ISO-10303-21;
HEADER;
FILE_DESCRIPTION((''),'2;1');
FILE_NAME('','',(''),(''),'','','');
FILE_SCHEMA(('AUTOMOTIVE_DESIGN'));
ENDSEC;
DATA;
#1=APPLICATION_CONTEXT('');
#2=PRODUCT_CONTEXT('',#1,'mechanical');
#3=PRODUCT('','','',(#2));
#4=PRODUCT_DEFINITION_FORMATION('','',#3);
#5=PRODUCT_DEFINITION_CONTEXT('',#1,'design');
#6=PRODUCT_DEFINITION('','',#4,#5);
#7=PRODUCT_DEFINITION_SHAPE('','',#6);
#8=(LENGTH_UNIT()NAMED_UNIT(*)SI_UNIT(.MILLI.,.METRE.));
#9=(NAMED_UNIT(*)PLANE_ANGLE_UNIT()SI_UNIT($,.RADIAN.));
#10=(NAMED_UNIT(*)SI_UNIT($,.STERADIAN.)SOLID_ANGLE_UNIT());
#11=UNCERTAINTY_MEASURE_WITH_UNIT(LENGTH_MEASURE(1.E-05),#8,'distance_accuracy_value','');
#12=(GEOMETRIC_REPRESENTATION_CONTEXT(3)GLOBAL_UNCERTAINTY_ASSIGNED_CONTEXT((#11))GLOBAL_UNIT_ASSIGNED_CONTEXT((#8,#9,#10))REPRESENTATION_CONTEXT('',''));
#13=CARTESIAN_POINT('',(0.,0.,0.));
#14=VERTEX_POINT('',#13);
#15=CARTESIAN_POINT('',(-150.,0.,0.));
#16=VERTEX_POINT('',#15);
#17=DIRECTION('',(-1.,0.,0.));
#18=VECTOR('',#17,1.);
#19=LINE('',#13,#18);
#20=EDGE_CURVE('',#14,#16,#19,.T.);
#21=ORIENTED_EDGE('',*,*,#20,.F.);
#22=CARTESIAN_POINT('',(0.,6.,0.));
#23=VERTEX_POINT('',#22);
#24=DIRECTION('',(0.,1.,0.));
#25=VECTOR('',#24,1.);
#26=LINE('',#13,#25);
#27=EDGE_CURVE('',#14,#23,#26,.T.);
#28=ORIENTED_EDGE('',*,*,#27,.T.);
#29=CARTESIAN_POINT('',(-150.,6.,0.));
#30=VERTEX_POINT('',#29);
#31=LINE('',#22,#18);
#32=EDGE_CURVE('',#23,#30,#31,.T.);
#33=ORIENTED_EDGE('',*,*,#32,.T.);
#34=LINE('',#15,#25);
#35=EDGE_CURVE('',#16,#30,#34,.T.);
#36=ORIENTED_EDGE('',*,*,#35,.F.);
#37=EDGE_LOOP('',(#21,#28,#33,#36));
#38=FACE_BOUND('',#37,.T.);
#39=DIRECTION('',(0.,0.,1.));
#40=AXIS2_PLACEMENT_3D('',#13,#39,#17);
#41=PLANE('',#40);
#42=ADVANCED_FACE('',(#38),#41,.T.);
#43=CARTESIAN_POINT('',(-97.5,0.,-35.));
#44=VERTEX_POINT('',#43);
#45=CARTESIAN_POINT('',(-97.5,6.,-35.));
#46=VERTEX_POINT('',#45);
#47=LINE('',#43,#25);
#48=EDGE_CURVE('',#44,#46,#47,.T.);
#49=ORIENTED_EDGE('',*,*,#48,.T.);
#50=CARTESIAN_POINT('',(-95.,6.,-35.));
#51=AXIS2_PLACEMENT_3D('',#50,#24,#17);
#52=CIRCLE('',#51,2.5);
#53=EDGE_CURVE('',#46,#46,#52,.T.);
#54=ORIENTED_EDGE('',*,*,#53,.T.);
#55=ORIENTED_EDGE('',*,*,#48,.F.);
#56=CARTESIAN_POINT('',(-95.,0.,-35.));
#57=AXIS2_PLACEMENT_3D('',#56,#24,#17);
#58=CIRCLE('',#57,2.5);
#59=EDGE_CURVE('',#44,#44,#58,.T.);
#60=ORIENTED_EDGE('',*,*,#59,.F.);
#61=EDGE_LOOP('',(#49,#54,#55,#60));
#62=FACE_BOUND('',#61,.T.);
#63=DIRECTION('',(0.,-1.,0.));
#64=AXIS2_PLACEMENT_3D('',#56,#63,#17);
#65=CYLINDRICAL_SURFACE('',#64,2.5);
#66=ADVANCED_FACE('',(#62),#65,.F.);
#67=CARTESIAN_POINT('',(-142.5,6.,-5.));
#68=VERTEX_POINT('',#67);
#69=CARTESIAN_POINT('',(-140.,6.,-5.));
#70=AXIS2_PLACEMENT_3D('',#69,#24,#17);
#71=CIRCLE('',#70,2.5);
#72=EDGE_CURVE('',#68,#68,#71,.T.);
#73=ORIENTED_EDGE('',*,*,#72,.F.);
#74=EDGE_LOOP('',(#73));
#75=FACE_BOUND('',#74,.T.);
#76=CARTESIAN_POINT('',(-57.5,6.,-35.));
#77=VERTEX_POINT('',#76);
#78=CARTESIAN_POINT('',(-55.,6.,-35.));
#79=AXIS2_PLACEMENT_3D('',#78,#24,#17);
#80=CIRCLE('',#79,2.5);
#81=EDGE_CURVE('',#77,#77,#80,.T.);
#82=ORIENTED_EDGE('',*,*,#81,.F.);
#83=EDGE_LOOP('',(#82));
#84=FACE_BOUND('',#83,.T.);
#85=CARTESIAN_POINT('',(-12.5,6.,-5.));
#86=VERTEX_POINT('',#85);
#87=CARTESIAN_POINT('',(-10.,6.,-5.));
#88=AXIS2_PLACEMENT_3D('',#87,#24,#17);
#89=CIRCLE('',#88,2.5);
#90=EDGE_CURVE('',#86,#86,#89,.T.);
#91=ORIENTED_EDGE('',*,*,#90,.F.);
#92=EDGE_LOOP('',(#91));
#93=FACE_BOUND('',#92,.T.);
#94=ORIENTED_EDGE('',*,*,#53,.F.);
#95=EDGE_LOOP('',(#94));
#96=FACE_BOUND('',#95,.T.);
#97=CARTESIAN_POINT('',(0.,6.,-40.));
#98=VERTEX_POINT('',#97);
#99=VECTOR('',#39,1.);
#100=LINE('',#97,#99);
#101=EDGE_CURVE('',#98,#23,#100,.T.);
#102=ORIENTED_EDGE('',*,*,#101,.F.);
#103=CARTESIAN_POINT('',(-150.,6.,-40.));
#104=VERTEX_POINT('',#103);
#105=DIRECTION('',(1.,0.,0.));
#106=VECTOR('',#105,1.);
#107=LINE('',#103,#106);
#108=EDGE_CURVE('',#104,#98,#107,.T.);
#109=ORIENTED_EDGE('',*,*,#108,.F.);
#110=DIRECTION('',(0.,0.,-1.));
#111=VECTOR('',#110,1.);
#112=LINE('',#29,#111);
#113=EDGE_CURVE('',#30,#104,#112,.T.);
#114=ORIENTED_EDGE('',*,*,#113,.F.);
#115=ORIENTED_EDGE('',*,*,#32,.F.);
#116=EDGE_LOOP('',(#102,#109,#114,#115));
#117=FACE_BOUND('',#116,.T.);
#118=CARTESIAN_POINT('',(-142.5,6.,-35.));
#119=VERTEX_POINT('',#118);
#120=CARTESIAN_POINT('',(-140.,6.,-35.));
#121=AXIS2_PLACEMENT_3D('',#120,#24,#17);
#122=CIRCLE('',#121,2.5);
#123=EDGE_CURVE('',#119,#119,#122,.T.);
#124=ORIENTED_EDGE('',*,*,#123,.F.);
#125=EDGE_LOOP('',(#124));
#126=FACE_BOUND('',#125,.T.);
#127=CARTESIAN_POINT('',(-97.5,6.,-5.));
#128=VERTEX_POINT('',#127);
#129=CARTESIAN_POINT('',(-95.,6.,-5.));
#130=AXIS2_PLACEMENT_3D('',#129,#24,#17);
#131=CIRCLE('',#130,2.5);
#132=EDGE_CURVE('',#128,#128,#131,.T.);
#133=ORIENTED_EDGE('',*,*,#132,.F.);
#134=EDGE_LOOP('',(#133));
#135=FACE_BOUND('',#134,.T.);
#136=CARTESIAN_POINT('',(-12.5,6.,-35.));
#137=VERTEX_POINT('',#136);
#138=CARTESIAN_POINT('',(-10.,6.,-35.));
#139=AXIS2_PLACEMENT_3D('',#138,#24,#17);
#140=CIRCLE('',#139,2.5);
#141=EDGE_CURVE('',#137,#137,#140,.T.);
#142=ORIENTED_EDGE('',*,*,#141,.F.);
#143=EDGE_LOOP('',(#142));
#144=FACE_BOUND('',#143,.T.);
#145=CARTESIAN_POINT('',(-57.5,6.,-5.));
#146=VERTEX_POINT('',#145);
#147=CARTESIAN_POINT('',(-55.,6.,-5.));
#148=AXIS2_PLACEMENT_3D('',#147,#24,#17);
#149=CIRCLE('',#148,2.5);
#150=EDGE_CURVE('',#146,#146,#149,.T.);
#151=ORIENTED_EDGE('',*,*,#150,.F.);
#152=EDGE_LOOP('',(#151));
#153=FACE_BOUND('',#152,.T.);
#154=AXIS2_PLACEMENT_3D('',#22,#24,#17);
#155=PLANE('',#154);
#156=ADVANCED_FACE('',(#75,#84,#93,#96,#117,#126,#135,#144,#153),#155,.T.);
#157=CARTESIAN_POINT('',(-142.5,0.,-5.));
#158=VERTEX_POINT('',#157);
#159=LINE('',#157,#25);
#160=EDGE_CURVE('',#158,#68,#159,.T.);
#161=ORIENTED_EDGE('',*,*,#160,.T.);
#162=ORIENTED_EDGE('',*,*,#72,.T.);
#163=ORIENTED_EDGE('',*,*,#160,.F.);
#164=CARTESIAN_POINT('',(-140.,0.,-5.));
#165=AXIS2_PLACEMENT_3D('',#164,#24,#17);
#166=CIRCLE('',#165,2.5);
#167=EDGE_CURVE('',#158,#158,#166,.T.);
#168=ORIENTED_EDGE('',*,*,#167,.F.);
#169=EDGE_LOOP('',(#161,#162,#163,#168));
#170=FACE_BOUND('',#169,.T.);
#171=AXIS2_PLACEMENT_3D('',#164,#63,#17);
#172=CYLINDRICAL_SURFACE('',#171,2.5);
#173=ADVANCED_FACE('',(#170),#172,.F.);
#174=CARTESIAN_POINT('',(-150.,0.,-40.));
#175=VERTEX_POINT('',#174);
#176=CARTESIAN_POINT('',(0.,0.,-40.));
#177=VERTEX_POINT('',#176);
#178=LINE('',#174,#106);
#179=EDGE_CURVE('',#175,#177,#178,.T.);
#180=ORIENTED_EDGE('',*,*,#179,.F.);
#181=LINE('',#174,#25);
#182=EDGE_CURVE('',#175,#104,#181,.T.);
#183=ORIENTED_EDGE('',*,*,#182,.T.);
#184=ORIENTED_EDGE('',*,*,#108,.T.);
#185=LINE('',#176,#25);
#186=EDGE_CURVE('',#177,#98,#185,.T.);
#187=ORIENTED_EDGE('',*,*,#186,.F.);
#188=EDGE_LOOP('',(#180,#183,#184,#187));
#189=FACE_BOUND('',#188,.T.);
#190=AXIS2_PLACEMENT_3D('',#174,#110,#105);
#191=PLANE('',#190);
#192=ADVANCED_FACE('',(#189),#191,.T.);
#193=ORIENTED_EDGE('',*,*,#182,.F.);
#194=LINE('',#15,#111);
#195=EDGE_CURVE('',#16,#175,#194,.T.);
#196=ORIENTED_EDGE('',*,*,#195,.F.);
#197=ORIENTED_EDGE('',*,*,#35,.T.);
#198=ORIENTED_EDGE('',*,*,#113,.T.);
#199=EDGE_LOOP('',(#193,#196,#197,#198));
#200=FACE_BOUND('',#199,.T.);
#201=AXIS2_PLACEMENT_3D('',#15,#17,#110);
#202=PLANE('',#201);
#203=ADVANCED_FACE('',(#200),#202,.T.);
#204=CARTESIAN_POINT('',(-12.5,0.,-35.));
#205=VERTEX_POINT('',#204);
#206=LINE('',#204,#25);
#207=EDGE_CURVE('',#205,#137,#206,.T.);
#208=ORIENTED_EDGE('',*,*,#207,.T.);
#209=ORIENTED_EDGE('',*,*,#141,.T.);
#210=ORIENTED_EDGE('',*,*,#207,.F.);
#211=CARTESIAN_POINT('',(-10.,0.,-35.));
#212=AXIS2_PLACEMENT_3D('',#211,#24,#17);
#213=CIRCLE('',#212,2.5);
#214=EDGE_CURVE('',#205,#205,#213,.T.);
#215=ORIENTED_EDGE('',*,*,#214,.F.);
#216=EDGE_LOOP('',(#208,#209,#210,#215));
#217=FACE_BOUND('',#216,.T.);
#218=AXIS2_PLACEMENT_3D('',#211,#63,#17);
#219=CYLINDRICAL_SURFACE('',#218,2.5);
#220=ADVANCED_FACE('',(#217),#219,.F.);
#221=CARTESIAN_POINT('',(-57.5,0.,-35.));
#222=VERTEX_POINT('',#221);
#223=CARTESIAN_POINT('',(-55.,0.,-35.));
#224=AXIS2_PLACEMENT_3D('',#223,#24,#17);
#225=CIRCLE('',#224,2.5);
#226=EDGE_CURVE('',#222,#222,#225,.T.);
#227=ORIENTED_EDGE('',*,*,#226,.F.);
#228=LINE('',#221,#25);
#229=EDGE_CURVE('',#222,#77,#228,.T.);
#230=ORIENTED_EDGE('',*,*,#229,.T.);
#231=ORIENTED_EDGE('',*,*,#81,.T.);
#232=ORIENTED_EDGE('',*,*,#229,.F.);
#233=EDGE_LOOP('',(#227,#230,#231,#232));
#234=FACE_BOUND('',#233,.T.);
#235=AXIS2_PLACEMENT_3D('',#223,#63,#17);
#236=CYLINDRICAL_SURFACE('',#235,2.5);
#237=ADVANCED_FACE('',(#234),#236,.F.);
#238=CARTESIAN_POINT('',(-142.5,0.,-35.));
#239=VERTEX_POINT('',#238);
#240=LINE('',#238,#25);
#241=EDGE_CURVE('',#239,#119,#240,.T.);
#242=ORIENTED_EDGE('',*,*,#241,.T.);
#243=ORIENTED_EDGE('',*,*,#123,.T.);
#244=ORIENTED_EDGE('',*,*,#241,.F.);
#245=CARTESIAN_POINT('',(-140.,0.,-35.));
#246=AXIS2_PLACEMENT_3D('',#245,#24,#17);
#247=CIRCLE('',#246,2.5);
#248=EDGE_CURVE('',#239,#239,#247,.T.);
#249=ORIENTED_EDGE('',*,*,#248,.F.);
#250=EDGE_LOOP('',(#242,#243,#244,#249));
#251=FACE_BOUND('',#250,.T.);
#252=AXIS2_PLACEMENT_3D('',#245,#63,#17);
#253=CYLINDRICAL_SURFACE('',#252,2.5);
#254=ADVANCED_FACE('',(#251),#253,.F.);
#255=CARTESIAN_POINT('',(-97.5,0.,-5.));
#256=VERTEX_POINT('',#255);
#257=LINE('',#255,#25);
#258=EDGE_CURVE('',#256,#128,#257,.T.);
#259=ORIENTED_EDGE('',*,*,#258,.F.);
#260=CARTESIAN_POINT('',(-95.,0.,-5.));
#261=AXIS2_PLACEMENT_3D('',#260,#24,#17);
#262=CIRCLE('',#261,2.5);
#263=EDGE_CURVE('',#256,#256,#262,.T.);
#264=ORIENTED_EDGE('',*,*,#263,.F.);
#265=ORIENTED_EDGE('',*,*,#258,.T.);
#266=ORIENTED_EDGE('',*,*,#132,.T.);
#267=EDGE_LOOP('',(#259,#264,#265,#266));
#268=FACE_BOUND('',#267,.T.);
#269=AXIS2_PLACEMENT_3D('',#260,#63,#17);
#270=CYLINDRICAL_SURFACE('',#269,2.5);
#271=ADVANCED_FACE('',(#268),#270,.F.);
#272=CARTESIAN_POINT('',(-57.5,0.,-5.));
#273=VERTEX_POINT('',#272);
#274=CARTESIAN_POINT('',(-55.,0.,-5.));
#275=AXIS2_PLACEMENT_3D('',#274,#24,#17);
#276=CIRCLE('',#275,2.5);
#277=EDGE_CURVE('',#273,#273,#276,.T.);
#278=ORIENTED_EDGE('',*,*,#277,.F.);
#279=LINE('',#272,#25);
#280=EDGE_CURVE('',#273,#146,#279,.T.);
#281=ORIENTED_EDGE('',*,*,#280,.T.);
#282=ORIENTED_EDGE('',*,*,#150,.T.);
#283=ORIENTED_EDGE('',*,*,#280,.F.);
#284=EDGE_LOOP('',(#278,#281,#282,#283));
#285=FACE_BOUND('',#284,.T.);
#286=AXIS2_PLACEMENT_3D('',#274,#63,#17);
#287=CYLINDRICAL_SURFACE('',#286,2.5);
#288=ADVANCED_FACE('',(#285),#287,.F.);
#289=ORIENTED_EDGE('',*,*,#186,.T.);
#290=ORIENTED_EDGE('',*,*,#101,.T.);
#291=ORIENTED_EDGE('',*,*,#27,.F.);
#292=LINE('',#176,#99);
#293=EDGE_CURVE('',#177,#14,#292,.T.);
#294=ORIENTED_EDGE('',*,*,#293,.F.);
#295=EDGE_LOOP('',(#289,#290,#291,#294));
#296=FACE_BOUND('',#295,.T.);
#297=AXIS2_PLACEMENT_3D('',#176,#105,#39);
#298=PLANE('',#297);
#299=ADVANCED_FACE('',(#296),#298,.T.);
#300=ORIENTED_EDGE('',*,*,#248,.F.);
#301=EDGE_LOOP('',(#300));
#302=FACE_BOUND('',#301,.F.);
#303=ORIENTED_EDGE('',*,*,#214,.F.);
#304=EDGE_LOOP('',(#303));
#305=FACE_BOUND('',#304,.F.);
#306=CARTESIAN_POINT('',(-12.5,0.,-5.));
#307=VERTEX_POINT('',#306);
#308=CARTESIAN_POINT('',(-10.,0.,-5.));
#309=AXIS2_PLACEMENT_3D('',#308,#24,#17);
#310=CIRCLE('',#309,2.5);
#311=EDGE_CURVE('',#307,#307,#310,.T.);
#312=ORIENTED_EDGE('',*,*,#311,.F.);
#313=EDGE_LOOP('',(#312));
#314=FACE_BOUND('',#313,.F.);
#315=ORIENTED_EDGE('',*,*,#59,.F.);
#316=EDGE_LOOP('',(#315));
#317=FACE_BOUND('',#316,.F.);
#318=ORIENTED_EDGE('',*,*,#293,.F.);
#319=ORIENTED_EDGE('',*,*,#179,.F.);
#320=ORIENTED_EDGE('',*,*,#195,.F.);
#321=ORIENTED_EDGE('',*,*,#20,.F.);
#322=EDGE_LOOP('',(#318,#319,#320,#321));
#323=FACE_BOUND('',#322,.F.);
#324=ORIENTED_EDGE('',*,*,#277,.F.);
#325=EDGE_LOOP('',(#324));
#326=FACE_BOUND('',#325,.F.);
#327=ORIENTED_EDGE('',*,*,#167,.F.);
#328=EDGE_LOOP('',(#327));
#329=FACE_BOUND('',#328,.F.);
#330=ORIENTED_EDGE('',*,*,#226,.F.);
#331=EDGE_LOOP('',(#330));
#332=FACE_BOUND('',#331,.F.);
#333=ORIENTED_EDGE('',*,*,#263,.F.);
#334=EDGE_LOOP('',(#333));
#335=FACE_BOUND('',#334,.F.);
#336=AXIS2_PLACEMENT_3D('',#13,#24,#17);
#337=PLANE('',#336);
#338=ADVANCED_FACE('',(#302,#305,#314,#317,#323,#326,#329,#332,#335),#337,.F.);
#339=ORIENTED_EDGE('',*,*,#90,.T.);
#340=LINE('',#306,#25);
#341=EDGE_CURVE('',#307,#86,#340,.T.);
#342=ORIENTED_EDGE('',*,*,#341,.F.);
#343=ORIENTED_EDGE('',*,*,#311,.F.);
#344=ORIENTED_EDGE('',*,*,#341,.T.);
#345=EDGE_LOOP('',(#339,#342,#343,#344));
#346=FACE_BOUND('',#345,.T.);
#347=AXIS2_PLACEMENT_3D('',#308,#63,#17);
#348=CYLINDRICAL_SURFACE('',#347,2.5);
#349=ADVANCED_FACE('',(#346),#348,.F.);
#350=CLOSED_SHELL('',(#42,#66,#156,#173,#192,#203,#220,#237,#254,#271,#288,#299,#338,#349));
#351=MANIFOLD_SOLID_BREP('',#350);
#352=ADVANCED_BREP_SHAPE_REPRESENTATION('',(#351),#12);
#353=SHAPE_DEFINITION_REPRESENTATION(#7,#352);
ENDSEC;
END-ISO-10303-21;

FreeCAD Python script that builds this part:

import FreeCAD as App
import Part
import Sketcher
from FreeCAD import Vector

doc = App.newDocument("Part")
params = doc.addObject("Spreadsheet::Sheet", "Params")
for row, (alias, value) in enumerate([
    ("sketch1_diameter", "5 mm"),
    ("sketch1_width", "150 mm"),
    ("sketch1_height", "40 mm"),
    ("pad1_length", "6 mm"),
], start=1):
    params.set(f"A{row}", alias)
    params.set(f"B{row}", "=" + value)
    params.setAlias(f"B{row}", alias)

body = doc.addObject("PartDesign::Body", "Body")

# Sketch on XZ plane
sketch1 = body.newObject("Sketcher::SketchObject", "Sketch")
sketch1.AttachmentSupport = (doc.getObject("XZ_Plane"), [""])
sketch1.MapMode = "FlatFace"
sketch1.addGeometry(Part.LineSegment(Vector(-150, 0, 0), Vector(0, 0, 0)), False)
sketch1.addGeometry(Part.LineSegment(Vector(0, 0, 0), Vector(0, -40, 0)), False)
sketch1.addGeometry(Part.LineSegment(Vector(0, -40, 0), Vector(-150, -40, 0)), False)
sketch1.addGeometry(Part.LineSegment(Vector(-150, -40, 0), Vector(-150, 0, 0)), False)
sketch1.addGeometry(Part.Circle(Vector(-10, -35, 0), Vector(0, 0, 1), 2.5), False)
sketch1.addGeometry(Part.Circle(Vector(-55, -35, 0), Vector(0, 0, 1), 2.5), False)
sketch1.addGeometry(Part.Circle(Vector(-95, -35, 0), Vector(0, 0, 1), 2.5), False)
sketch1.addGeometry(Part.Circle(Vector(-140, -35, 0), Vector(0, 0, 1), 2.5), False)
sketch1.addGeometry(Part.Circle(Vector(-10, -5, 0), Vector(0, 0, 1), 2.5), False)
sketch1.addGeometry(Part.Circle(Vector(-55, -5, 0), Vector(0, 0, 1), 2.5), False)
sketch1.addGeometry(Part.Circle(Vector(-95, -5, 0), Vector(0, 0, 1), 2.5), False)
sketch1.addGeometry(Part.Circle(Vector(-140, -5, 0), Vector(0, 0, 1), 2.5), False)
sketch1.addConstraint(Sketcher.Constraint("Coincident", 0, 2, 1, 1))
sketch1.addConstraint(Sketcher.Constraint("Coincident", 1, 2, 2, 1))
sketch1.addConstraint(Sketcher.Constraint("Coincident", 2, 2, 3, 1))
sketch1.addConstraint(Sketcher.Constraint("Coincident", 3, 2, 0, 1))
sketch1.addConstraint(Sketcher.Constraint("Horizontal", 0))
sketch1.addConstraint(Sketcher.Constraint("Vertical", 1))
sketch1.addConstraint(Sketcher.Constraint("Horizontal", 2))
sketch1.addConstraint(Sketcher.Constraint("Vertical", 3))
sketch1.addConstraint(Sketcher.Constraint("Coincident", 0, 2, -1, 1))
sketch1.addConstraint(Sketcher.Constraint("Equal", 4, 5))
sketch1.addConstraint(Sketcher.Constraint("Equal", 5, 6))
sketch1.addConstraint(Sketcher.Constraint("Equal", 6, 7))
sketch1.addConstraint(Sketcher.Constraint("Equal", 7, 8))
sketch1.addConstraint(Sketcher.Constraint("Equal", 8, 9))
sketch1.addConstraint(Sketcher.Constraint("Equal", 9, 10))
sketch1.addConstraint(Sketcher.Constraint("Equal", 10, 11))
sketch1.addConstraint(Sketcher.Constraint("Horizontal", 4, 3, 5, 3))
sketch1.addConstraint(Sketcher.Constraint("Horizontal", 5, 3, 6, 3))
sketch1.addConstraint(Sketcher.Constraint("Horizontal", 6, 3, 7, 3))
sketch1.addConstraint(Sketcher.Constraint("Horizontal", 8, 3, 9, 3))
sketch1.addConstraint(Sketcher.Constraint("Horizontal", 9, 3, 10, 3))
sketch1.addConstraint(Sketcher.Constraint("Horizontal", 10, 3, 11, 3))
sketch1.addConstraint(Sketcher.Constraint("Vertical", 4, 3, 8, 3))
sketch1.addConstraint(Sketcher.Constraint("Vertical", 5, 3, 9, 3))
sketch1.addConstraint(Sketcher.Constraint("Vertical", 6, 3, 10, 3))
sketch1.addConstraint(Sketcher.Constraint("Vertical", 7, 3, 11, 3))
sketch1.addConstraint(Sketcher.Constraint("Diameter", 4, 5.0))
sketch1.addConstraint(Sketcher.Constraint("DistanceX", 0, 1, 0, 2, 150.0))
sketch1.addConstraint(Sketcher.Constraint("DistanceX", 4, 3, -1, 1, 10.0))
sketch1.addConstraint(Sketcher.Constraint("DistanceY", 8, 3, -1, 1, 5.0))
sketch1.addConstraint(Sketcher.Constraint("DistanceY", 1, 2, 4, 3, 5.0))
sketch1.addConstraint(Sketcher.Constraint("DistanceX", 2, 2, 7, 3, 10.0))
sketch1.addConstraint(Sketcher.Constraint("DistanceY", 1, 2, 1, 1, 40.0))
sketch1.addConstraint(Sketcher.Constraint("DistanceX", 5, 3, -1, 1, 55.0))
sketch1.addConstraint(Sketcher.Constraint("DistanceX", 6, 3, -1, 1, 95.0))
sketch1.setExpression("Constraints[26]", "Params.sketch1_diameter")
sketch1.setExpression("Constraints[27]", "Params.sketch1_width")
sketch1.setExpression("Constraints[32]", "Params.sketch1_height")
pad1 = body.newObject("PartDesign::Pad", "Pad")
pad1.Profile = sketch1
pad1.setExpression("Length", "Params.pad1_length")
pad1.Reversed = True

doc.recompute()
